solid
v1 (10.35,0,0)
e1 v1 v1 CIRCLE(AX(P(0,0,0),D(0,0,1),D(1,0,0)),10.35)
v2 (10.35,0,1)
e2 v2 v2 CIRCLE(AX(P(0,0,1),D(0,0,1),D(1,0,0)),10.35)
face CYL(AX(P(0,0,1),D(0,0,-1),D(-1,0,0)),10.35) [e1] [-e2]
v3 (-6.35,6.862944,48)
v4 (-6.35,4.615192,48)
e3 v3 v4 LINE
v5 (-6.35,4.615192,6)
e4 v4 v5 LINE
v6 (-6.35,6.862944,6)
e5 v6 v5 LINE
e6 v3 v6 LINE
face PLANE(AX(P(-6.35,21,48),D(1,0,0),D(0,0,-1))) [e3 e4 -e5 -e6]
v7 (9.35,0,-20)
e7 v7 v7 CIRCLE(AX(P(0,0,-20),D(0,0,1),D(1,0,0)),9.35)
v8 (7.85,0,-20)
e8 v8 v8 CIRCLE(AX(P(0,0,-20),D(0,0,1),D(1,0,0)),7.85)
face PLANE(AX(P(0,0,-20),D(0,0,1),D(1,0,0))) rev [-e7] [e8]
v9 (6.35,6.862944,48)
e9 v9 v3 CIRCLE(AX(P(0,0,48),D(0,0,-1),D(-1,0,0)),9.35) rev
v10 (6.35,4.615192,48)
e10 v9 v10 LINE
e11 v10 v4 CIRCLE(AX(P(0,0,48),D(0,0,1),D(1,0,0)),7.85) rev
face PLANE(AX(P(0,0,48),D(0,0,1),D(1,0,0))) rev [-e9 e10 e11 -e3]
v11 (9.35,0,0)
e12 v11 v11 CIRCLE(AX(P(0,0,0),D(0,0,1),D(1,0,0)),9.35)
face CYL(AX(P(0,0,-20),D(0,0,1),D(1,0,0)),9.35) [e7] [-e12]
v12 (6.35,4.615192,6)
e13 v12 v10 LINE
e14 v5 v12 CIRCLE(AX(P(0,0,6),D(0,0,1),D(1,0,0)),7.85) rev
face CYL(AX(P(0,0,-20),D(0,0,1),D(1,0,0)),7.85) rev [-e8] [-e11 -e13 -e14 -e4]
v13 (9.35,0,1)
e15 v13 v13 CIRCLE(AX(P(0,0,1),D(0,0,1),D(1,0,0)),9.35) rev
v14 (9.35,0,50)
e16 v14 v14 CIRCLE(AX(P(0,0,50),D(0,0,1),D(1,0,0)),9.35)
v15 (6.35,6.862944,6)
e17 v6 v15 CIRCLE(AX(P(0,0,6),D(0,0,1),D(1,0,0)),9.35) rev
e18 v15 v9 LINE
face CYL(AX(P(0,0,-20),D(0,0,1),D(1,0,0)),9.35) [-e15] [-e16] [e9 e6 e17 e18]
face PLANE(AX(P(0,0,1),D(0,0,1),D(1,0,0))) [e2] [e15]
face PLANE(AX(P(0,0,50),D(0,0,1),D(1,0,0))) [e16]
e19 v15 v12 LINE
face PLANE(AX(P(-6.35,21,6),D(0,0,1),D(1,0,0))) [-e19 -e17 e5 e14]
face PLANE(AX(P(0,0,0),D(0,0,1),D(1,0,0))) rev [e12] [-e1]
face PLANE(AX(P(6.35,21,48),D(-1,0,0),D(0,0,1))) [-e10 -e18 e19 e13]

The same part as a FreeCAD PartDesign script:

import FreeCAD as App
import Part
import Sketcher

doc = App.newDocument("Part")
params = doc.addObject("Spreadsheet::Sheet", "Params")
for row, (alias, value) in enumerate([
    ("sketch1_diameter", "18.7 mm"),
    ("sketch1_diameter2", "15.7 mm"),
    ("pad1_length", "50 mm"),
    ("pad1_length2", "20 mm"),
    ("sketch2_diameter", "20.7 mm"),
    ("sketch2_diameter2", "18.7 mm"),
    ("pad2_length", "1 mm"),
    ("sketch3_diameter", "15.7 mm"),
    ("pad3_length", "2 mm"),
    ("sketch4_height", "42 mm"),
    ("sketch4_width", "12.7 mm"),
    ("pocket1_length", "21 mm"),
], start=1):
    params.set(f"A{row}", alias)
    params.set(f"B{row}", "=" + value)
    params.setAlias(f"B{row}", alias)

body = doc.addObject("PartDesign::Body", "Body")

# Sketch on XY plane
sketch1 = body.newObject("Sketcher::SketchObject", "Sketch")
sketch1.AttachmentSupport = (doc.getObject("XY_Plane"), [""])
sketch1.MapMode = "FlatFace"
sketch1.addGeometry([
    Part.Circle(App.Vector(0, 0, 0), App.Vector(0, 0, 1), 9),
    Part.Circle(App.Vector(0, 0, 0), App.Vector(0, 0, 1), 8),
], False)
sketch1.addConstraint([
    Sketcher.Constraint("Coincident", 0, 3, -1, 1),
    Sketcher.Constraint("Coincident", 1, 3, -1, 1),
    Sketcher.Constraint("Diameter", 0, 18.7),
    Sketcher.Constraint("Diameter", 1, 15.7),
])
sketch1.setExpression("Constraints[2]", "Params.sketch1_diameter")
sketch1.setExpression("Constraints[3]", "Params.sketch1_diameter2")
pad1 = body.newObject("PartDesign::Pad", "Pad")
pad1.Profile = sketch1
pad1.Type = "TwoLengths"
pad1.setExpression("Length", "Params.pad1_length")
pad1.setExpression("Length2", "Params.pad1_length2")

# Sketch on XY plane
sketch2 = body.newObject("Sketcher::SketchObject", "Sketch001")
sketch2.AttachmentSupport = (doc.getObject("XY_Plane"), [""])
sketch2.MapMode = "FlatFace"
sketch2.addGeometry([
    Part.Circle(App.Vector(0, 0, 0), App.Vector(0, 0, 1), 10),
    Part.Circle(App.Vector(0, 0, 0), App.Vector(0, 0, 1), 9),
], False)
sketch2.addConstraint([
    Sketcher.Constraint("Coincident", 0, 3, -1, 1),
    Sketcher.Constraint("Coincident", 1, 3, -1, 1),
    Sketcher.Constraint("Diameter", 0, 20.7),
    Sketcher.Constraint("Diameter", 1, 18.7),
])
sketch2.setExpression("Constraints[2]", "Params.sketch2_diameter")
sketch2.setExpression("Constraints[3]", "Params.sketch2_diameter2")
pad2 = body.newObject("PartDesign::Pad", "Pad001")
pad2.Profile = sketch2
pad2.setExpression("Length", "Params.pad2_length")

# Sketch on XY plane
sketch3 = body.newObject("Sketcher::SketchObject", "Sketch002")
sketch3.AttachmentSupport = (doc.getObject("XY_Plane"), [""])
sketch3.MapMode = "FlatFace"
sketch3.AttachmentOffset = App.Placement(App.Vector(0, 0, 48), App.Rotation())
sketch3.addGeometry(Part.Circle(App.Vector(0, 0, 0), App.Vector(0, 0, 1), 8), False)
sketch3.addConstraint([
    Sketcher.Constraint("Coincident", 0, 3, -1, 1),
    Sketcher.Constraint("Diameter", 0, 15.7),
])
sketch3.setExpression("Constraints[1]", "Params.sketch3_diameter")
pad3 = body.newObject("PartDesign::Pad", "Pad002")
pad3.Profile = sketch3
pad3.setExpression("Length", "Params.pad3_length")

# Sketch on XZ plane
sketch4 = body.newObject("Sketcher::SketchObject", "Sketch003")
sketch4.AttachmentSupport = (doc.getObject("XZ_Plane"), [""])
sketch4.MapMode = "FlatFace"
sketch4.addGeometry([
    Part.LineSegment(App.Vector(-6, 6, 0), App.Vector(-6, 48, 0)),
    Part.LineSegment(App.Vector(-6, 48, 0), App.Vector(6, 48, 0)),
    Part.LineSegment(App.Vector(6, 48, 0), App.Vector(6, 6, 0)),
    Part.LineSegment(App.Vector(6, 6, 0), App.Vector(-6, 6, 0)),
], False)
sketch4.addConstraint([
    Sketcher.Constraint("Coincident", 0, 2, 1, 1),
    Sketcher.Constraint("Coincident", 1, 2, 2, 1),
    Sketcher.Constraint("Coincident", 2, 2, 3, 1),
    Sketcher.Constraint("Coincident", 3, 2, 0, 1),
    Sketcher.Constraint("Vertical", 0),
    Sketcher.Constraint("Horizontal", 1),
    Sketcher.Constraint("Vertical", 2),
    Sketcher.Constraint("Horizontal", 3),
    Sketcher.Constraint("DistanceY", 0, 1, 0, 2, 42.0),
    Sketcher.Constraint("DistanceX", 1, 1, 1, 2, 12.7),
    Sketcher.Constraint("DistanceY", -1, 1, 0, 2, 48.0),
    Sketcher.Constraint("DistanceX", 0, 2, -1, 1, 6.35),
])
sketch4.setExpression("Constraints[8]", "Params.sketch4_height")
sketch4.setExpression("Constraints[9]", "Params.sketch4_width")
pocket1 = body.newObject("PartDesign::Pocket", "Pocket")
pocket1.Profile = sketch4
pocket1.setExpression("Length", "Params.pocket1_length")

doc.recompute()
